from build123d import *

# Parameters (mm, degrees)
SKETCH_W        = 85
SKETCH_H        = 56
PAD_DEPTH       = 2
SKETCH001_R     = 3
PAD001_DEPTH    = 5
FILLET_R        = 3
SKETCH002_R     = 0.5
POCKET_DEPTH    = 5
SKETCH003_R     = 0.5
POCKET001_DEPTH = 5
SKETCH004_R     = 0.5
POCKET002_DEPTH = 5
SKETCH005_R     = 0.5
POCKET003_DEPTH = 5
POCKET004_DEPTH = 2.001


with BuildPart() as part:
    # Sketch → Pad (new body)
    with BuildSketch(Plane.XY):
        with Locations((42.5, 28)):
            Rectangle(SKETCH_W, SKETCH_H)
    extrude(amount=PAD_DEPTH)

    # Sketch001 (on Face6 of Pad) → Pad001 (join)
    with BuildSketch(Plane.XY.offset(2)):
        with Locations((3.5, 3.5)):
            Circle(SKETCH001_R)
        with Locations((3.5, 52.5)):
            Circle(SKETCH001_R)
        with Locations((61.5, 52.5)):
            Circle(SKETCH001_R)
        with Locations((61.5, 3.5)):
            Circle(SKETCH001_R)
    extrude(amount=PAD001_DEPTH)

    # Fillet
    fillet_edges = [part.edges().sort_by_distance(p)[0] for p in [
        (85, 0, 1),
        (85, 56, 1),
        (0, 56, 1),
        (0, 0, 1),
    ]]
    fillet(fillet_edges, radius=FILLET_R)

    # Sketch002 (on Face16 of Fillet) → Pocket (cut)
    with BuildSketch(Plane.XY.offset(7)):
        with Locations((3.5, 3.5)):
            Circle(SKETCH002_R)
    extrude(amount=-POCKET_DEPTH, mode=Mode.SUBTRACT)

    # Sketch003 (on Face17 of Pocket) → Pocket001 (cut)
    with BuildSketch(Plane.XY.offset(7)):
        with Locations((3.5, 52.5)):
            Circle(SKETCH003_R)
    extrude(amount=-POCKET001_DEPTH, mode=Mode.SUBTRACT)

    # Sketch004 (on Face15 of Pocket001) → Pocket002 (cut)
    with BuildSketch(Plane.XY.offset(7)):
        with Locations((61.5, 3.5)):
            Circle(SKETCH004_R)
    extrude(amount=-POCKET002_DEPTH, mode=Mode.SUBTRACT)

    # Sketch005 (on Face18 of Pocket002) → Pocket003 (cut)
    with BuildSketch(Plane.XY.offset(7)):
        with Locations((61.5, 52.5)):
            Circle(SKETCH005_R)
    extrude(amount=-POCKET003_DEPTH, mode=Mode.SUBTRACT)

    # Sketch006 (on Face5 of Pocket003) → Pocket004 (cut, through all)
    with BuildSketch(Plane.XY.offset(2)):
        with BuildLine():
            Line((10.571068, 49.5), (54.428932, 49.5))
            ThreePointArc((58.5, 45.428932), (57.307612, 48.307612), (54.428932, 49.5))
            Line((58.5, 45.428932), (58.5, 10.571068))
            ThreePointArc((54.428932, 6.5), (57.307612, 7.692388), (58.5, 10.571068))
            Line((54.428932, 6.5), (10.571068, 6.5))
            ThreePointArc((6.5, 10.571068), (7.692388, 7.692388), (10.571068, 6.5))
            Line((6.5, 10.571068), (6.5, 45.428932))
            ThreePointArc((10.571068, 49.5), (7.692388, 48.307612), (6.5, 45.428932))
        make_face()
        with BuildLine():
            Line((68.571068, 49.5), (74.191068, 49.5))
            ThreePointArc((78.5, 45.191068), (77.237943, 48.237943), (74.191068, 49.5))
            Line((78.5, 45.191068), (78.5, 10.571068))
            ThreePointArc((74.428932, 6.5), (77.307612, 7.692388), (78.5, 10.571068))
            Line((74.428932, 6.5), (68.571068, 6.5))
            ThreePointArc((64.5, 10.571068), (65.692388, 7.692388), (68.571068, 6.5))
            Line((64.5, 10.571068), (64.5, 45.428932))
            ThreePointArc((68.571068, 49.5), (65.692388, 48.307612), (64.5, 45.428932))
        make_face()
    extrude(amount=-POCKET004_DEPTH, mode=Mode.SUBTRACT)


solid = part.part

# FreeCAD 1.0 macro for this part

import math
import FreeCAD as App
import Part
import Sketcher
from FreeCAD import Vector
Q = App.Units.Quantity


def edges_at(feature, points):
    """Names of the edges that pass closest to the given points."""
    edges = feature.Shape.Edges
    near = lambda p: min(range(len(edges)), key=lambda i: edges[i].distToShape(Part.Vertex(*p))[0])
    return sorted({f"Edge{near(p) + 1}" for p in points})

doc = App.newDocument("Part")
body = doc.addObject("PartDesign::Body", "Body")

sketch1 = doc.addObject("Sketcher::SketchObject", "Sketch")
body.addObject(sketch1)
sketch1.AttachmentSupport = (doc.XY_Plane, [""])
sketch1.MapMode = "FlatFace"
sketch1.addGeometry(Part.LineSegment(Vector(0, 56, 0), Vector(0, 0, 0)), False)
sketch1.addGeometry(Part.LineSegment(Vector(0, 0, 0), Vector(85, 0, 0)), False)
sketch1.addGeometry(Part.LineSegment(Vector(85, 0, 0), Vector(85, 56, 0)), False)
sketch1.addGeometry(Part.LineSegment(Vector(85, 56, 0), Vector(0, 56, 0)), False)
sketch1.addConstraint(Sketcher.Constraint("Coincident", 0, 2, 1, 1))
sketch1.addConstraint(Sketcher.Constraint("Coincident", 1, 2, 2, 1))
sketch1.addConstraint(Sketcher.Constraint("Coincident", 2, 2, 3, 1))
sketch1.addConstraint(Sketcher.Constraint("Coincident", 3, 2, 0, 1))
sketch1.addConstraint(Sketcher.Constraint("Vertical", 0))
sketch1.addConstraint(Sketcher.Constraint("Horizontal", 1))
sketch1.addConstraint(Sketcher.Constraint("Vertical", 2))
sketch1.addConstraint(Sketcher.Constraint("Horizontal", 3))
sketch1.addConstraint(Sketcher.Constraint("Coincident", 0, 2, -1, 1))
sketch1.addConstraint(Sketcher.Constraint("DistanceX", 1, 1, 1, 2, Q("85 mm")))
sketch1.addConstraint(Sketcher.Constraint("DistanceY", 0, 2, 0, 1, Q("56 mm")))
pad1 = doc.addObject("PartDesign::Pad", "Pad")
body.addObject(pad1)
pad1.Profile = sketch1
pad1.Length = 2

sketch2 = doc.addObject("Sketcher::SketchObject", "Sketch001")
body.addObject(sketch2)
sketch2.AttachmentSupport = (doc.XY_Plane, [""])
sketch2.MapMode = "FlatFace"
sketch2.AttachmentOffset = App.Placement(Vector(0, 0, 2), App.Rotation())
sketch2.addGeometry(Part.Circle(Vector(3.5, 3.5, 0), Vector(0, 0, 1), 3), False)
sketch2.addGeometry(Part.Circle(Vector(3.5, 52.5, 0), Vector(0, 0, 1), 3), False)
sketch2.addGeometry(Part.Circle(Vector(61.5, 52.5, 0), Vector(0, 0, 1), 3), False)
sketch2.addGeometry(Part.Circle(Vector(61.5, 3.5, 0), Vector(0, 0, 1), 3), False)
sketch2.addConstraint(Sketcher.Constraint("Equal", 0, 1))
sketch2.addConstraint(Sketcher.Constraint("Equal", 1, 2))
sketch2.addConstraint(Sketcher.Constraint("Equal", 2, 3))
sketch2.addConstraint(Sketcher.Constraint("Horizontal", 1, 3, 2, 3))
sketch2.addConstraint(Sketcher.Constraint("Horizontal", 0, 3, 3, 3))
sketch2.addConstraint(Sketcher.Constraint("Vertical", 0, 3, 1, 3))
sketch2.addConstraint(Sketcher.Constraint("Vertical", 2, 3, 3, 3))
sketch2.addConstraint(Sketcher.Constraint("Diameter", 0, Q("6 mm")))
sketch2.addConstraint(Sketcher.Constraint("DistanceY", 0, 3, 1, 3, Q("49 mm")))
sketch2.addConstraint(Sketcher.Constraint("DistanceX", 1, 3, 2, 3, Q("58 mm")))
sketch2.addConstraint(Sketcher.Constraint("DistanceX", -1, 1, 0, 3, Q("3.5 mm")))
sketch2.addConstraint(Sketcher.Constraint("DistanceY", -1, 1, 0, 3, Q("3.5 mm")))
pad2 = doc.addObject("PartDesign::Pad", "Pad001")
body.addObject(pad2)
pad2.Profile = sketch2
pad2.Length = 5
doc.recompute()

fillet = doc.addObject("PartDesign::Fillet", "Fillet")
body.addObject(fillet)
fillet.Base = (pad2, edges_at(pad2, [
    (85, 0, 1),
    (85, 56, 1),
    (0, 56, 1),
    (0, 0, 1),
]))
fillet.Radius = 3

sketch3 = doc.addObject("Sketcher::SketchObject", "Sketch002")
body.addObject(sketch3)
sketch3.AttachmentSupport = (doc.XY_Plane, [""])
sketch3.MapMode = "FlatFace"
sketch3.AttachmentOffset = App.Placement(Vector(0, 0, 7), App.Rotation())
sketch3.addGeometry(Part.Circle(Vector(3.5, 3.5, 0), Vector(0, 0, 1), 0.5), False)
sketch3.addConstraint(Sketcher.Constraint("Diameter", 0, Q("1 mm")))
sketch3.addConstraint(Sketcher.Constraint("DistanceX", -1, 1, 0, 3, Q("3.5 mm")))
sketch3.addConstraint(Sketcher.Constraint("DistanceY", -1, 1, 0, 3, Q("3.5 mm")))
pocket1 = doc.addObject("PartDesign::Pocket", "Pocket")
body.addObject(pocket1)
pocket1.Profile = sketch3
pocket1.Length = 5

sketch4 = doc.addObject("Sketcher::SketchObject", "Sketch003")
body.addObject(sketch4)
sketch4.AttachmentSupport = (doc.XY_Plane, [""])
sketch4.MapMode = "FlatFace"
sketch4.AttachmentOffset = App.Placement(Vector(0, 0, 7), App.Rotation())
sketch4.addGeometry(Part.Circle(Vector(3.5, 52.5, 0), Vector(0, 0, 1), 0.5), False)
sketch4.addConstraint(Sketcher.Constraint("Diameter", 0, Q("1 mm")))
sketch4.addConstraint(Sketcher.Constraint("DistanceX", -1, 1, 0, 3, Q("3.5 mm")))
sketch4.addConstraint(Sketcher.Constraint("DistanceY", -1, 1, 0, 3, Q("52.5 mm")))
pocket2 = doc.addObject("PartDesign::Pocket", "Pocket001")
body.addObject(pocket2)
pocket2.Profile = sketch4
pocket2.Length = 5

sketch5 = doc.addObject("Sketcher::SketchObject", "Sketch004")
body.addObject(sketch5)
sketch5.AttachmentSupport = (doc.XY_Plane, [""])
sketch5.MapMode = "FlatFace"
sketch5.AttachmentOffset = App.Placement(Vector(0, 0, 7), App.Rotation())
sketch5.addGeometry(Part.Circle(Vector(61.5, 3.5, 0), Vector(0, 0, 1), 0.5), False)
sketch5.addConstraint(Sketcher.Constraint("Diameter", 0, Q("1 mm")))
sketch5.addConstraint(Sketcher.Constraint("DistanceX", -1, 1, 0, 3, Q("61.5 mm")))
sketch5.addConstraint(Sketcher.Constraint("DistanceY", -1, 1, 0, 3, Q("3.5 mm")))
pocket3 = doc.addObject("PartDesign::Pocket", "Pocket002")
body.addObject(pocket3)
pocket3.Profile = sketch5
pocket3.Length = 5

sketch6 = doc.addObject("Sketcher::SketchObject", "Sketch005")
body.addObject(sketch6)
sketch6.AttachmentSupport = (doc.XY_Plane, [""])
sketch6.MapMode = "FlatFace"
sketch6.AttachmentOffset = App.Placement(Vector(0, 0, 7), App.Rotation())
sketch6.addGeometry(Part.Circle(Vector(61.5, 52.5, 0), Vector(0, 0, 1), 0.5), False)
sketch6.addConstraint(Sketcher.Constraint("Diameter", 0, Q("1 mm")))
sketch6.addConstraint(Sketcher.Constraint("DistanceX", -1, 1, 0, 3, Q("61.5 mm")))
sketch6.addConstraint(Sketcher.Constraint("DistanceY", -1, 1, 0, 3, Q("52.5 mm")))
pocket4 = doc.addObject("PartDesign::Pocket", "Pocket003")
body.addObject(pocket4)
pocket4.Profile = sketch6
pocket4.Length = 5

sketch7 = doc.addObject("Sketcher::SketchObject", "Sketch006")
body.addObject(sketch7)
sketch7.AttachmentSupport = (doc.XY_Plane, [""])
sketch7.MapMode = "FlatFace"
sketch7.AttachmentOffset = App.Placement(Vector(0, 0, 2), App.Rotation())
sketch7.addGeometry(Part.LineSegment(Vector(54.428932, 49.5, 0), Vector(10.571068, 49.5, 0)), False)
sketch7.addGeometry(Part.ArcOfCircle(Part.Circle(Vector(10.571067, 45.428933, 0), Vector(0, 0, 1), 4.071067), math.radians(89.99999), math.radians(180.00001)), False)
sketch7.addGeometry(Part.LineSegment(Vector(6.5, 45.428932, 0), Vector(6.5, 10.571068, 0)), False)
sketch7.addGeometry(Part.ArcOfCircle(Part.Circle(Vector(10.571067, 10.571067, 0), Vector(0, 0, 1), 4.071067), math.radians(179.99999), math.radians(270.00001)), False)
sketch7.addGeometry(Part.LineSegment(Vector(10.571068, 6.5, 0), Vector(54.428932, 6.5, 0)), False)
sketch7.addGeometry(Part.ArcOfCircle(Part.Circle(Vector(54.428933, 10.571067, 0), Vector(0, 0, 1), 4.071067), math.radians(-90.00001), math.radians(0.00001)), False)
sketch7.addGeometry(Part.LineSegment(Vector(58.5, 10.571068, 0), Vector(58.5, 45.428932, 0)), False)
sketch7.addGeometry(Part.ArcOfCircle(Part.Circle(Vector(54.428933, 45.428933, 0), Vector(0, 0, 1), 4.071067), math.radians(-0.00001), math.radians(90.00001)), False)
sketch7.addGeometry(Part.LineSegment(Vector(74.191068, 49.5, 0), Vector(68.571068, 49.5, 0)), False)
sketch7.addGeometry(Part.ArcOfCircle(Part.Circle(Vector(68.571067, 45.428933, 0), Vector(0, 0, 1), 4.071067), math.radians(89.99999), math.radians(180.00001)), False)
sketch7.addGeometry(Part.LineSegment(Vector(64.5, 45.428932, 0), Vector(64.5, 10.571068, 0)), False)
sketch7.addGeometry(Part.ArcOfCircle(Part.Circle(Vector(68.571067, 10.571067, 0), Vector(0, 0, 1), 4.071067), math.radians(179.99999), math.radians(270.00001)), False)
sketch7.addGeometry(Part.LineSegment(Vector(68.571068, 6.5, 0), Vector(74.428932, 6.5, 0)), False)
sketch7.addGeometry(Part.ArcOfCircle(Part.Circle(Vector(74.428933, 10.571067, 0), Vector(0, 0, 1), 4.071067), math.radians(-90.00001), math.radians(0.00001)), False)
sketch7.addGeometry(Part.LineSegment(Vector(78.5, 10.571068, 0), Vector(78.5, 45.191068, 0)), False)
sketch7.addGeometry(Part.ArcOfCircle(Part.Circle(Vector(74.191068, 45.191068, 0), Vector(0, 0, 1), 4.308932), math.radians(0.000002), math.radians(89.999998)), False)
sketch7.addConstraint(Sketcher.Constraint("Tangent", 0, 2, 1, 1))
sketch7.addConstraint(Sketcher.Constraint("Tangent", 1, 2, 2, 1))
sketch7.addConstraint(Sketcher.Constraint("Tangent", 2, 2, 3, 1))
sketch7.addConstraint(Sketcher.Constraint("Tangent", 3, 2, 4, 1))
sketch7.addConstraint(Sketcher.Constraint("Tangent", 4, 2, 5, 1))
sketch7.addConstraint(Sketcher.Constraint("Tangent", 5, 2, 6, 1))
sketch7.addConstraint(Sketcher.Constraint("Tangent", 6, 2, 7, 1))
sketch7.addConstraint(Sketcher.Constraint("Tangent", 7, 2, 0, 1))
sketch7.addConstraint(Sketcher.Constraint("Tangent", 8, 2, 9, 1))
sketch7.addConstraint(Sketcher.Constraint("Tangent", 9, 2, 10, 1))
sketch7.addConstraint(Sketcher.Constraint("Tangent", 10, 2, 11, 1))
sketch7.addConstraint(Sketcher.Constraint("Tangent", 11, 2, 12, 1))
sketch7.addConstraint(Sketcher.Constraint("Tangent", 12, 2, 13, 1))
sketch7.addConstraint(Sketcher.Constraint("Tangent", 13, 2, 14, 1))
sketch7.addConstraint(Sketcher.Constraint("Tangent", 14, 2, 15, 1))
sketch7.addConstraint(Sketcher.Constraint("Tangent", 15, 2, 8, 1))
sketch7.addConstraint(Sketcher.Constraint("Horizontal", 0))
sketch7.addConstraint(Sketcher.Constraint("Vertical", 2))
sketch7.addConstraint(Sketcher.Constraint("Horizontal", 4))
sketch7.addConstraint(Sketcher.Constraint("Vertical", 6))
sketch7.addConstraint(Sketcher.Constraint("Horizontal", 8))
sketch7.addConstraint(Sketcher.Constraint("Vertical", 10))
sketch7.addConstraint(Sketcher.Constraint("Horizontal", 12))
sketch7.addConstraint(Sketcher.Constraint("Vertical", 14))
sketch7.addConstraint(Sketcher.Constraint("Equal", 1, 3))
sketch7.addConstraint(Sketcher.Constraint("Equal", 3, 5))
sketch7.addConstraint(Sketcher.Constraint("Equal", 5, 7))
sketch7.addConstraint(Sketcher.Constraint("Equal", 7, 9))
sketch7.addConstraint(Sketcher.Constraint("Equal", 9, 11))
sketch7.addConstraint(Sketcher.Constraint("Equal", 11, 13))
sketch7.addConstraint(Sketcher.Constraint("Horizontal", 7, 3, 9, 3))
sketch7.addConstraint(Sketcher.Constraint("Horizontal", 5, 3, 11, 3))
sketch7.addConstraint(Sketcher.Constraint("DistanceX", 1, 3, 9, 3, Q("58 mm")))
sketch7.addConstraint(Sketcher.Constraint("DistanceX", 5, 3, 13, 3, Q("20 mm")))
sketch7.addConstraint(Sketcher.Constraint("DistanceY", 3, 2, 0, 2, Q("43 mm")))
sketch7.addConstraint(Sketcher.Constraint("DistanceX", 6, 2, 9, 2, Q("6 mm")))
sketch7.addConstraint(Sketcher.Constraint("DistanceX", 8, 2, 8, 1, Q("5.62 mm")))
sketch7.addConstraint(Sketcher.Constraint("DistanceY", -1, 1, 0, 2, Q("49.5 mm")))
sketch7.addConstraint(Sketcher.Constraint("DistanceX", -1, 1, 1, 2, Q("6.5 mm")))
sketch7.addConstraint(Sketcher.Constraint("Radius", 1, Q("4.071067 mm")))
pocket5 = doc.addObject("PartDesign::Pocket", "Pocket004")
body.addObject(pocket5)
pocket5.Profile = sketch7
pocket5.Type = "ThroughAll"

doc.recompute()
